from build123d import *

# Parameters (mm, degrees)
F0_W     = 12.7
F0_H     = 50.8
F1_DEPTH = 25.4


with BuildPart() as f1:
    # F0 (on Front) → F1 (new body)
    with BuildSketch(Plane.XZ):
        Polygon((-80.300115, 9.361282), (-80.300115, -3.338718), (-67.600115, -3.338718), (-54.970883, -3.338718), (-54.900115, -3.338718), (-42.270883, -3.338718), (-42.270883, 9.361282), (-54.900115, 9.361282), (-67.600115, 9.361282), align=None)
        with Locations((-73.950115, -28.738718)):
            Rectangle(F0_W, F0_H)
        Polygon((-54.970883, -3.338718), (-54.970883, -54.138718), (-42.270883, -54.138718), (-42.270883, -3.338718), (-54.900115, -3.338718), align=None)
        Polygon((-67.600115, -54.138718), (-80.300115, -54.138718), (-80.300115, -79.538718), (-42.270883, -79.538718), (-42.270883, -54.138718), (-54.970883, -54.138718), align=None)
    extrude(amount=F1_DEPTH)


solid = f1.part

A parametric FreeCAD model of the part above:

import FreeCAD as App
import Part
import Sketcher

V = App.Vector
Q = App.Units.Quantity


def add_polygon(sketch, points):
    """Adds a closed chain of lines whose ends are joined by coincident constraints."""
    first, n = sketch.GeometryCount, len(points)
    for a, b in zip(points, points[1:] + points[:1]):
        sketch.addGeometry(Part.LineSegment(App.Vector(*a, 0), App.Vector(*b, 0)), False)
    for i in range(n):
        sketch.addConstraint(Sketcher.Constraint("Coincident", first + i, 2, first + (i + 1) % n, 1))

doc = App.newDocument("Part")
body = doc.addObject("PartDesign::Body", "Body")

# Sketch on XZ plane
sketch1 = body.newObject("Sketcher::SketchObject", "Sketch")
sketch1.AttachmentSupport = (doc.getObject("XZ_Plane"), [""])
sketch1.MapMode = "FlatFace"
add_polygon(sketch1, [(-80, 9), (-80, -80), (-42, -80), (-42, 9)])  # lines 0-3
add_polygon(sketch1, [(-68, -54), (-68, -3), (-55, -3), (-55, -54)])  # lines 4-7
sketch1.addConstraint([
    Sketcher.Constraint("Vertical", 0),
    Sketcher.Constraint("Horizontal", 1),
    Sketcher.Constraint("Vertical", 2),
    Sketcher.Constraint("Horizontal", 3),
    Sketcher.Constraint("Vertical", 4),
    Sketcher.Constraint("Horizontal", 5),
    Sketcher.Constraint("Vertical", 6),
    Sketcher.Constraint("Horizontal", 7),
    Sketcher.Constraint("DistanceY", 4, 1, 4, 2, Q("2 in")),
    Sketcher.Constraint("DistanceY", 0, 2, 0, 1, Q("3.5 in")),
    Sketcher.Constraint("DistanceY", 0, 2, 4, 2, Q("3 in")),
    Sketcher.Constraint("DistanceX", 3, 2, 4, 2, Q("0.5 in")),
    Sketcher.Constraint("DistanceX", 5, 2, 2, 2, Q("0.5 in")),
    Sketcher.Constraint("DistanceX", 1, 1, 1, 2, 38.029232),
    Sketcher.Constraint("DistanceY", 0, 2, -1, 1, 79.538718),
    Sketcher.Constraint("DistanceX", 0, 2, -1, 1, 80.300115),
])
pad1 = body.newObject("PartDesign::Pad", "Pad")
pad1.Profile = sketch1
pad1.Length = Q("1 in")

doc.recompute()
